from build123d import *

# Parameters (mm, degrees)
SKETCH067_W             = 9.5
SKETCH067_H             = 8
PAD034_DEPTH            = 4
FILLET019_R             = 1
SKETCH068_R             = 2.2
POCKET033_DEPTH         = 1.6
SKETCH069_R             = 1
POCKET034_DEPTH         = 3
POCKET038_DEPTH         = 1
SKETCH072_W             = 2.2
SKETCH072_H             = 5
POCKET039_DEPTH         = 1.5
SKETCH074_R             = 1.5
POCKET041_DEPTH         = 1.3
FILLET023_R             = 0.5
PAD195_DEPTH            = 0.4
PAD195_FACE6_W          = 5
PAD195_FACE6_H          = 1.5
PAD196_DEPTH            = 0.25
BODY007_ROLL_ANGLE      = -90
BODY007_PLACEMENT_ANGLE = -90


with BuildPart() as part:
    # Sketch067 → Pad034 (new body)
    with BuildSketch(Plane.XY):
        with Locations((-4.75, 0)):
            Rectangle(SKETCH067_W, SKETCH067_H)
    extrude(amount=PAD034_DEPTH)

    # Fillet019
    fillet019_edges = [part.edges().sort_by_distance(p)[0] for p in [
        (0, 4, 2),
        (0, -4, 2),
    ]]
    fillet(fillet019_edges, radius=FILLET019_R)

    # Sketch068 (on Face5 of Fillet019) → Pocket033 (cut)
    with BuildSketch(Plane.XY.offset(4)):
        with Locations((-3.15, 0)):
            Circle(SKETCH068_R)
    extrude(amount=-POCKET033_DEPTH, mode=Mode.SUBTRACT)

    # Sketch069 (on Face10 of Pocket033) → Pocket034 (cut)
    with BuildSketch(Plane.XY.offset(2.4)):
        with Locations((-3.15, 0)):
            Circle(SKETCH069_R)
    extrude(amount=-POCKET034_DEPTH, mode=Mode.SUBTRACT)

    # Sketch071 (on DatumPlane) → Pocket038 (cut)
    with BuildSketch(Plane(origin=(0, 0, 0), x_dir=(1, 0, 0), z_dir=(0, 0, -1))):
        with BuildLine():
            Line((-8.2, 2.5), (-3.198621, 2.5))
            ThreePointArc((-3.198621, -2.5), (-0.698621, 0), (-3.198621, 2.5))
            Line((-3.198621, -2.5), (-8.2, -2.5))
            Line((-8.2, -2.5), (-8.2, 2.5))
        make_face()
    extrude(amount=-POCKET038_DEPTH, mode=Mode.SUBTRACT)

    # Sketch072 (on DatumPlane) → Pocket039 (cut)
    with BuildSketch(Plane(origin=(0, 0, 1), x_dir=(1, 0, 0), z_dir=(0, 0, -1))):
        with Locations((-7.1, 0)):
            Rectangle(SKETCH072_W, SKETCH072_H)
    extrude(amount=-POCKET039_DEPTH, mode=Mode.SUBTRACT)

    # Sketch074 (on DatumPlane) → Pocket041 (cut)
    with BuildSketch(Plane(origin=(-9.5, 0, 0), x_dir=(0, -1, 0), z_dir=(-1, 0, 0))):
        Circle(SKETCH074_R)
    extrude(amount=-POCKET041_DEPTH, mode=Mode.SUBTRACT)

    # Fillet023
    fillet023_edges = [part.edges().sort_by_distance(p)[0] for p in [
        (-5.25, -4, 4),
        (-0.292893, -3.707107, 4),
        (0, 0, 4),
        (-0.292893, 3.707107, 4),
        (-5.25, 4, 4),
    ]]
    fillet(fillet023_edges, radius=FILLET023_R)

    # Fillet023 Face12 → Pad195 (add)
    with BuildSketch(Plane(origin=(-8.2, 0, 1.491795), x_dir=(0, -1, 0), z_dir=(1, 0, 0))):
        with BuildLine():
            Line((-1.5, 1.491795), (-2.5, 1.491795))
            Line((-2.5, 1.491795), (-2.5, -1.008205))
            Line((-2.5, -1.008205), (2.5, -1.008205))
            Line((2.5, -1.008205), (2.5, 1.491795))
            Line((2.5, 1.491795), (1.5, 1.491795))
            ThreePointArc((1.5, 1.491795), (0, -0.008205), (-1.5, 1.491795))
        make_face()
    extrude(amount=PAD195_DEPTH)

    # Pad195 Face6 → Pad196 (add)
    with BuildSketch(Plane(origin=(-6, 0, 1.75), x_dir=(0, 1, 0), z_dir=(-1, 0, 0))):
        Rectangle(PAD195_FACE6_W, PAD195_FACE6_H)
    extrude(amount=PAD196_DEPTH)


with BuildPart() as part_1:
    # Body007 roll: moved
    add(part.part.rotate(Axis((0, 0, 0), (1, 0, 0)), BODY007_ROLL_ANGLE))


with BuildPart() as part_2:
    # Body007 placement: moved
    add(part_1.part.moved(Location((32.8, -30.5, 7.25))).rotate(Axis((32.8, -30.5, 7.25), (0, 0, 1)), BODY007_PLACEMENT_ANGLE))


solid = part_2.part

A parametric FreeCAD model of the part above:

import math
import FreeCAD as App
import Part
import Sketcher

V = App.Vector
Q = App.Units.Quantity


def edges_at(feature, points):
    """Names of the edges that pass closest to the given points."""
    edges = feature.Shape.Edges
    near = lambda p: min(range(len(edges)), key=lambda i: edges[i].distToShape(Part.Vertex(*p))[0])
    return sorted({f"Edge{near(p) + 1}" for p in points})


def add_polygon(sketch, points):
    """Adds a closed chain of lines whose ends are joined by coincident constraints."""
    first, n = sketch.GeometryCount, len(points)
    for a, b in zip(points, points[1:] + points[:1]):
        sketch.addGeometry(Part.LineSegment(App.Vector(*a, 0), App.Vector(*b, 0)), False)
    for i in range(n):
        sketch.addConstraint(Sketcher.Constraint("Coincident", first + i, 2, first + (i + 1) % n, 1))

doc = App.newDocument("Part")
params = doc.addObject("Spreadsheet::Sheet", "Params")
for row, (alias, value) in enumerate([
    ("sketch1_height", "8 mm"),
    ("sketch1_width", "9.5 mm"),
    ("pad1_length", "4 mm"),
    ("fillet_radius", "1 mm"),
    ("sketch2_diameter", "4.4 mm"),
    ("pocket1_length", "1.6 mm"),
    ("sketch3_diameter", "2 mm"),
    ("pocket2_length", "3 mm"),
    ("sketch4_radius", "2.5 mm"),
    ("pocket3_length", "1 mm"),
    ("sketch5_height", "5 mm"),
    ("sketch5_width", "2.2 mm"),
    ("pocket4_length", "1.5 mm"),
    ("sketch6_diameter", "3 mm"),
    ("pocket5_length", "1.3 mm"),
    ("fillet2_radius", "0.5 mm"),
    ("sketch7_radius", "1.5 mm"),
    ("sketch7_width", "1 mm"),
    ("sketch7_height", "2.5 mm"),
    ("pad2_length", "0.4 mm"),
    ("sketch8_width", "5 mm"),
    ("sketch8_height", "1.5 mm"),
    ("pad3_length", "0.25 mm"),
], start=1):
    params.set(f"A{row}", alias)
    params.set(f"B{row}", "=" + value)
    params.setAlias(f"B{row}", alias)

body = doc.addObject("PartDesign::Body", "Body")

# Sketch on XY plane
sketch1 = body.newObject("Sketcher::SketchObject", "Sketch")
sketch1.AttachmentSupport = (doc.getObject("XY_Plane"), [""])
sketch1.MapMode = "FlatFace"
add_polygon(sketch1, [(-9.5, 4), (-9.5, -4), (0, -4), (0, 4)])  # lines 0-3
sketch1.addConstraint([
    Sketcher.Constraint("Vertical", 0),
    Sketcher.Constraint("Horizontal", 1),
    Sketcher.Constraint("Vertical", 2),
    Sketcher.Constraint("Horizontal", 3),
    Sketcher.Constraint("Symmetric", 1, 2, 2, 2, -1, 1),
    Sketcher.Constraint("DistanceY", 0, 2, 0, 1, Q("8 mm")),
    Sketcher.Constraint("DistanceX", 1, 1, 1, 2, Q("9.5 mm")),
])
sketch1.setExpression("Constraints[9]", "Params.sketch1_height")
sketch1.setExpression("Constraints[10]", "Params.sketch1_width")
pad1 = body.newObject("PartDesign::Pad", "Pad")
pad1.Profile = sketch1
pad1.setExpression("Length", "Params.pad1_length")
doc.recompute()

fillet = body.newObject("PartDesign::Fillet", "Fillet")
fillet.Base = (pad1, edges_at(pad1, [(0, 4, 2), (0, -4, 2)]))
fillet.setExpression("Radius", "Params.fillet_radius")

# Sketch on XY plane
sketch2 = body.newObject("Sketcher::SketchObject", "Sketch001")
sketch2.AttachmentSupport = (doc.getObject("XY_Plane"), [""])
sketch2.MapMode = "FlatFace"
sketch2.AttachmentOffset = App.Placement(V(0, 0, 4), App.Rotation())
sketch2.addGeometry(Part.Circle(V(-3.15, 0, 0), V(0, 0, 1), 2.2), False)
sketch2.addConstraint([
    Sketcher.Constraint("PointOnObject", 0, 3, -1),
    Sketcher.Constraint("Diameter", 0, Q("4.4 mm")),
    Sketcher.Constraint("DistanceX", 0, 3, -1, 1, Q("3.15 mm")),
])
sketch2.setExpression("Constraints[1]", "Params.sketch2_diameter")
pocket1 = body.newObject("PartDesign::Pocket", "Pocket")
pocket1.Profile = sketch2
pocket1.setExpression("Length", "Params.pocket1_length")

# Sketch on XY plane
sketch3 = body.newObject("Sketcher::SketchObject", "Sketch002")
sketch3.AttachmentSupport = (doc.getObject("XY_Plane"), [""])
sketch3.MapMode = "FlatFace"
sketch3.AttachmentOffset = App.Placement(V(0, 0, 2.4), App.Rotation())
sketch3.addGeometry(Part.Circle(V(-3.15, 0, 0), V(0, 0, 1), 1), False)
sketch3.addConstraint([
    Sketcher.Constraint("PointOnObject", 0, 3, -1),
    Sketcher.Constraint("Diameter", 0, Q("2 mm")),
    Sketcher.Constraint("DistanceX", 0, 3, -1, 1, Q("3.15 mm")),
])
sketch3.setExpression("Constraints[1]", "Params.sketch3_diameter")
pocket2 = body.newObject("PartDesign::Pocket", "Pocket001")
pocket2.Profile = sketch3
pocket2.setExpression("Length", "Params.pocket2_length")

# Sketch on XY plane
sketch4 = body.newObject("Sketcher::SketchObject", "Sketch003")
sketch4.AttachmentSupport = (doc.getObject("XY_Plane"), [""])
sketch4.MapMode = "FlatFace"
sketch4.addGeometry([
    Part.LineSegment(V(-3.198621, -2.5, 0), V(-8.2, -2.5, 0)),
    Part.LineSegment(V(-8.2, -2.5, 0), V(-8.2, 2.5, 0)),
    Part.LineSegment(V(-8.2, 2.5, 0), V(-3.198621, 2.5, 0)),
    Part.ArcOfCircle(Part.Circle(V(-3.198621, 0, 0), V(0, 0, 1), 2.5), math.radians(-90), math.radians(90)),
], False)
sketch4.addConstraint([
    Sketcher.Constraint("Coincident", 0, 2, 1, 1),
    Sketcher.Constraint("Coincident", 1, 2, 2, 1),
    Sketcher.Constraint("Tangent", 2, 2, 3, 2),
    Sketcher.Constraint("Tangent", 3, 1, 0, 1),
    Sketcher.Constraint("Horizontal", 0),
    Sketcher.Constraint("Vertical", 1),
    Sketcher.Constraint("Horizontal", 2),
    Sketcher.Constraint("PointOnObject", 3, 3, -1),
    Sketcher.Constraint("Radius", 3, Q("2.5 mm")),
    Sketcher.Constraint("DistanceX", 0, 2, -1, 1, Q("8.2 mm")),
    Sketcher.Constraint("DistanceX", 0, 2, 0, 1, Q("5.001379 mm")),
])
sketch4.setExpression("Constraints[8]", "Params.sketch4_radius")
pocket3 = body.newObject("PartDesign::Pocket", "Pocket002")
pocket3.Profile = sketch4
pocket3.setExpression("Length", "Params.pocket3_length")
pocket3.Reversed = True

# Sketch on XY plane
sketch5 = body.newObject("Sketcher::SketchObject", "Sketch004")
sketch5.AttachmentSupport = (doc.getObject("XY_Plane"), [""])
sketch5.MapMode = "FlatFace"
sketch5.AttachmentOffset = App.Placement(V(0, 0, 1), App.Rotation())
add_polygon(sketch5, [(-8.2, -2.5), (-8.2, 2.5), (-6, 2.5), (-6, -2.5)])  # lines 0-3
sketch5.addConstraint([
    Sketcher.Constraint("Vertical", 0),
    Sketcher.Constraint("Horizontal", 1),
    Sketcher.Constraint("Vertical", 2),
    Sketcher.Constraint("Horizontal", 3),
    Sketcher.Constraint("DistanceY", 0, 1, 0, 2, Q("5 mm")),
    Sketcher.Constraint("DistanceX", 1, 1, 1, 2, Q("2.2 mm")),
    Sketcher.Constraint("DistanceX", 1, 2, -1, 1, Q("6 mm")),
    Sketcher.Constraint("DistanceY", -1, 1, 0, 2, Q("2.5 mm")),
])
sketch5.setExpression("Constraints[8]", "Params.sketch5_height")
sketch5.setExpression("Constraints[9]", "Params.sketch5_width")
pocket4 = body.newObject("PartDesign::Pocket", "Pocket003")
pocket4.Profile = sketch5
pocket4.setExpression("Length", "Params.pocket4_length")
pocket4.Reversed = True

# Sketch on YZ plane
sketch6 = body.newObject("Sketcher::SketchObject", "Sketch005")
sketch6.AttachmentSupport = (doc.getObject("YZ_Plane"), [""])
sketch6.MapMode = "FlatFace"
sketch6.AttachmentOffset = App.Placement(V(0, 0, -9.5), App.Rotation())
sketch6.addGeometry(Part.Circle(V(0, 0, 0), V(0, 0, 1), 1.5), False)
sketch6.addConstraint([
    Sketcher.Constraint("Coincident", 0, 3, -1, 1),
    Sketcher.Constraint("Diameter", 0, Q("3 mm")),
])
sketch6.setExpression("Constraints[1]", "Params.sketch6_diameter")
pocket5 = body.newObject("PartDesign::Pocket", "Pocket004")
pocket5.Profile = sketch6
pocket5.setExpression("Length", "Params.pocket5_length")
pocket5.Reversed = True
doc.recompute()

fillet2 = body.newObject("PartDesign::Fillet", "Fillet001")
fillet2.Base = (pocket5, edges_at(pocket5, [
    (-5.25, -4, 4),
    (-0.293, -3.707, 4),
    (0, 0, 4),
    (-0.293, 3.707, 4),
    (-5.25, 4, 4),
]))
fillet2.setExpression("Radius", "Params.fillet2_radius")

# Sketch on YZ plane
sketch7 = body.newObject("Sketcher::SketchObject", "Sketch006")
sketch7.AttachmentSupport = (doc.getObject("YZ_Plane"), [""])
sketch7.MapMode = "FlatFace"
sketch7.AttachmentOffset = App.Placement(V(0, 0, -8.2), App.Rotation())
sketch7.addGeometry([
    Part.LineSegment(V(1.5, 0, 0), V(2.5, 0, 0)),  # 0
    Part.LineSegment(V(2.5, 0, 0), V(2.5, 2.5, 0)),  # 1
    Part.LineSegment(V(2.5, 2.5, 0), V(-2.5, 2.5, 0)),  # 2
    Part.LineSegment(V(-2.5, 2.5, 0), V(-2.5, 0, 0)),  # 3
    Part.LineSegment(V(-2.5, 0, 0), V(-1.5, 0, 0)),  # 4
    Part.ArcOfCircle(Part.Circle(V(0, 0, 0), V(0, 0, 1), 1.5), math.radians(0), math.radians(180)),  # 5
], False)
sketch7.addConstraint([
    Sketcher.Constraint("Coincident", 0, 2, 1, 1),
    Sketcher.Constraint("Coincident", 1, 2, 2, 1),
    Sketcher.Constraint("Coincident", 2, 2, 3, 1),
    Sketcher.Constraint("Coincident", 3, 2, 4, 1),
    Sketcher.Constraint("Coincident", 4, 2, 5, 2),
    Sketcher.Constraint("Coincident", 5, 1, 0, 1),
    Sketcher.Constraint("Horizontal", 0),
    Sketcher.Constraint("Vertical", 1),
    Sketcher.Constraint("Horizontal", 2),
    Sketcher.Constraint("Vertical", 3),
    Sketcher.Constraint("Horizontal", 4),
    Sketcher.Constraint("Coincident", 5, 3, -1, 1),
    Sketcher.Constraint("Symmetric", 0, 2, 3, 2, -1, 1),
    Sketcher.Constraint("PointOnObject", 0, 2, -1),
    Sketcher.Constraint("Radius", 5, Q("1.5 mm")),
    Sketcher.Constraint("DistanceX", 0, 1, 0, 2, Q("1 mm")),
    Sketcher.Constraint("DistanceY", 1, 1, 1, 2, Q("2.5 mm")),
])
sketch7.setExpression("Constraints[14]", "Params.sketch7_radius")
sketch7.setExpression("Constraints[15]", "Params.sketch7_width")
sketch7.setExpression("Constraints[16]", "Params.sketch7_height")
pad2 = body.newObject("PartDesign::Pad", "Pad001")
pad2.Profile = sketch7
pad2.setExpression("Length", "Params.pad2_length")

# Sketch on YZ plane
sketch8 = body.newObject("Sketcher::SketchObject", "Sketch007")
sketch8.AttachmentSupport = (doc.getObject("YZ_Plane"), [""])
sketch8.MapMode = "FlatFace"
sketch8.AttachmentOffset = App.Placement(V(0, 0, -6), App.Rotation())
add_polygon(sketch8, [(-2.5, 1), (-2.5, 2.5), (2.5, 2.5), (2.5, 1)])  # lines 0-3
sketch8.addConstraint([
    Sketcher.Constraint("Vertical", 0),
    Sketcher.Constraint("Horizontal", 1),
    Sketcher.Constraint("Vertical", 2),
    Sketcher.Constraint("Horizontal", 3),
    Sketcher.Constraint("DistanceX", 1, 1, 1, 2, Q("5 mm")),
    Sketcher.Constraint("DistanceY", 0, 1, 0, 2, Q("1.5 mm")),
    Sketcher.Constraint("DistanceY", -1, 1, 2, 2, Q("1 mm")),
    Sketcher.Constraint("DistanceX", 0, 2, -1, 1, Q("2.5 mm")),
])
sketch8.setExpression("Constraints[8]", "Params.sketch8_width")
sketch8.setExpression("Constraints[9]", "Params.sketch8_height")
pad3 = body.newObject("PartDesign::Pad", "Pad002")
pad3.Profile = sketch8
pad3.setExpression("Length", "Params.pad3_length")
pad3.Reversed = True
body2 = doc.addObject("PartDesign::Body", "Body001")
doc.recompute()

body.Placement = App.Placement(V(0, 0, 0), App.Rotation(V(1, 0, 0), 270))
boolean = body2.newObject("PartDesign::Boolean", "Boolean")
boolean.Type = "Fuse"
boolean.addObjects([body])
body3 = doc.addObject("PartDesign::Body", "Body002")
doc.recompute()

body2.Placement = App.Placement(V(32.8, -30.5, 7.25), App.Rotation(V(0, 0, 1), 270))
boolean2 = body3.newObject("PartDesign::Boolean", "Boolean001")
boolean2.Type = "Fuse"
boolean2.addObjects([body2])

doc.recompute()
